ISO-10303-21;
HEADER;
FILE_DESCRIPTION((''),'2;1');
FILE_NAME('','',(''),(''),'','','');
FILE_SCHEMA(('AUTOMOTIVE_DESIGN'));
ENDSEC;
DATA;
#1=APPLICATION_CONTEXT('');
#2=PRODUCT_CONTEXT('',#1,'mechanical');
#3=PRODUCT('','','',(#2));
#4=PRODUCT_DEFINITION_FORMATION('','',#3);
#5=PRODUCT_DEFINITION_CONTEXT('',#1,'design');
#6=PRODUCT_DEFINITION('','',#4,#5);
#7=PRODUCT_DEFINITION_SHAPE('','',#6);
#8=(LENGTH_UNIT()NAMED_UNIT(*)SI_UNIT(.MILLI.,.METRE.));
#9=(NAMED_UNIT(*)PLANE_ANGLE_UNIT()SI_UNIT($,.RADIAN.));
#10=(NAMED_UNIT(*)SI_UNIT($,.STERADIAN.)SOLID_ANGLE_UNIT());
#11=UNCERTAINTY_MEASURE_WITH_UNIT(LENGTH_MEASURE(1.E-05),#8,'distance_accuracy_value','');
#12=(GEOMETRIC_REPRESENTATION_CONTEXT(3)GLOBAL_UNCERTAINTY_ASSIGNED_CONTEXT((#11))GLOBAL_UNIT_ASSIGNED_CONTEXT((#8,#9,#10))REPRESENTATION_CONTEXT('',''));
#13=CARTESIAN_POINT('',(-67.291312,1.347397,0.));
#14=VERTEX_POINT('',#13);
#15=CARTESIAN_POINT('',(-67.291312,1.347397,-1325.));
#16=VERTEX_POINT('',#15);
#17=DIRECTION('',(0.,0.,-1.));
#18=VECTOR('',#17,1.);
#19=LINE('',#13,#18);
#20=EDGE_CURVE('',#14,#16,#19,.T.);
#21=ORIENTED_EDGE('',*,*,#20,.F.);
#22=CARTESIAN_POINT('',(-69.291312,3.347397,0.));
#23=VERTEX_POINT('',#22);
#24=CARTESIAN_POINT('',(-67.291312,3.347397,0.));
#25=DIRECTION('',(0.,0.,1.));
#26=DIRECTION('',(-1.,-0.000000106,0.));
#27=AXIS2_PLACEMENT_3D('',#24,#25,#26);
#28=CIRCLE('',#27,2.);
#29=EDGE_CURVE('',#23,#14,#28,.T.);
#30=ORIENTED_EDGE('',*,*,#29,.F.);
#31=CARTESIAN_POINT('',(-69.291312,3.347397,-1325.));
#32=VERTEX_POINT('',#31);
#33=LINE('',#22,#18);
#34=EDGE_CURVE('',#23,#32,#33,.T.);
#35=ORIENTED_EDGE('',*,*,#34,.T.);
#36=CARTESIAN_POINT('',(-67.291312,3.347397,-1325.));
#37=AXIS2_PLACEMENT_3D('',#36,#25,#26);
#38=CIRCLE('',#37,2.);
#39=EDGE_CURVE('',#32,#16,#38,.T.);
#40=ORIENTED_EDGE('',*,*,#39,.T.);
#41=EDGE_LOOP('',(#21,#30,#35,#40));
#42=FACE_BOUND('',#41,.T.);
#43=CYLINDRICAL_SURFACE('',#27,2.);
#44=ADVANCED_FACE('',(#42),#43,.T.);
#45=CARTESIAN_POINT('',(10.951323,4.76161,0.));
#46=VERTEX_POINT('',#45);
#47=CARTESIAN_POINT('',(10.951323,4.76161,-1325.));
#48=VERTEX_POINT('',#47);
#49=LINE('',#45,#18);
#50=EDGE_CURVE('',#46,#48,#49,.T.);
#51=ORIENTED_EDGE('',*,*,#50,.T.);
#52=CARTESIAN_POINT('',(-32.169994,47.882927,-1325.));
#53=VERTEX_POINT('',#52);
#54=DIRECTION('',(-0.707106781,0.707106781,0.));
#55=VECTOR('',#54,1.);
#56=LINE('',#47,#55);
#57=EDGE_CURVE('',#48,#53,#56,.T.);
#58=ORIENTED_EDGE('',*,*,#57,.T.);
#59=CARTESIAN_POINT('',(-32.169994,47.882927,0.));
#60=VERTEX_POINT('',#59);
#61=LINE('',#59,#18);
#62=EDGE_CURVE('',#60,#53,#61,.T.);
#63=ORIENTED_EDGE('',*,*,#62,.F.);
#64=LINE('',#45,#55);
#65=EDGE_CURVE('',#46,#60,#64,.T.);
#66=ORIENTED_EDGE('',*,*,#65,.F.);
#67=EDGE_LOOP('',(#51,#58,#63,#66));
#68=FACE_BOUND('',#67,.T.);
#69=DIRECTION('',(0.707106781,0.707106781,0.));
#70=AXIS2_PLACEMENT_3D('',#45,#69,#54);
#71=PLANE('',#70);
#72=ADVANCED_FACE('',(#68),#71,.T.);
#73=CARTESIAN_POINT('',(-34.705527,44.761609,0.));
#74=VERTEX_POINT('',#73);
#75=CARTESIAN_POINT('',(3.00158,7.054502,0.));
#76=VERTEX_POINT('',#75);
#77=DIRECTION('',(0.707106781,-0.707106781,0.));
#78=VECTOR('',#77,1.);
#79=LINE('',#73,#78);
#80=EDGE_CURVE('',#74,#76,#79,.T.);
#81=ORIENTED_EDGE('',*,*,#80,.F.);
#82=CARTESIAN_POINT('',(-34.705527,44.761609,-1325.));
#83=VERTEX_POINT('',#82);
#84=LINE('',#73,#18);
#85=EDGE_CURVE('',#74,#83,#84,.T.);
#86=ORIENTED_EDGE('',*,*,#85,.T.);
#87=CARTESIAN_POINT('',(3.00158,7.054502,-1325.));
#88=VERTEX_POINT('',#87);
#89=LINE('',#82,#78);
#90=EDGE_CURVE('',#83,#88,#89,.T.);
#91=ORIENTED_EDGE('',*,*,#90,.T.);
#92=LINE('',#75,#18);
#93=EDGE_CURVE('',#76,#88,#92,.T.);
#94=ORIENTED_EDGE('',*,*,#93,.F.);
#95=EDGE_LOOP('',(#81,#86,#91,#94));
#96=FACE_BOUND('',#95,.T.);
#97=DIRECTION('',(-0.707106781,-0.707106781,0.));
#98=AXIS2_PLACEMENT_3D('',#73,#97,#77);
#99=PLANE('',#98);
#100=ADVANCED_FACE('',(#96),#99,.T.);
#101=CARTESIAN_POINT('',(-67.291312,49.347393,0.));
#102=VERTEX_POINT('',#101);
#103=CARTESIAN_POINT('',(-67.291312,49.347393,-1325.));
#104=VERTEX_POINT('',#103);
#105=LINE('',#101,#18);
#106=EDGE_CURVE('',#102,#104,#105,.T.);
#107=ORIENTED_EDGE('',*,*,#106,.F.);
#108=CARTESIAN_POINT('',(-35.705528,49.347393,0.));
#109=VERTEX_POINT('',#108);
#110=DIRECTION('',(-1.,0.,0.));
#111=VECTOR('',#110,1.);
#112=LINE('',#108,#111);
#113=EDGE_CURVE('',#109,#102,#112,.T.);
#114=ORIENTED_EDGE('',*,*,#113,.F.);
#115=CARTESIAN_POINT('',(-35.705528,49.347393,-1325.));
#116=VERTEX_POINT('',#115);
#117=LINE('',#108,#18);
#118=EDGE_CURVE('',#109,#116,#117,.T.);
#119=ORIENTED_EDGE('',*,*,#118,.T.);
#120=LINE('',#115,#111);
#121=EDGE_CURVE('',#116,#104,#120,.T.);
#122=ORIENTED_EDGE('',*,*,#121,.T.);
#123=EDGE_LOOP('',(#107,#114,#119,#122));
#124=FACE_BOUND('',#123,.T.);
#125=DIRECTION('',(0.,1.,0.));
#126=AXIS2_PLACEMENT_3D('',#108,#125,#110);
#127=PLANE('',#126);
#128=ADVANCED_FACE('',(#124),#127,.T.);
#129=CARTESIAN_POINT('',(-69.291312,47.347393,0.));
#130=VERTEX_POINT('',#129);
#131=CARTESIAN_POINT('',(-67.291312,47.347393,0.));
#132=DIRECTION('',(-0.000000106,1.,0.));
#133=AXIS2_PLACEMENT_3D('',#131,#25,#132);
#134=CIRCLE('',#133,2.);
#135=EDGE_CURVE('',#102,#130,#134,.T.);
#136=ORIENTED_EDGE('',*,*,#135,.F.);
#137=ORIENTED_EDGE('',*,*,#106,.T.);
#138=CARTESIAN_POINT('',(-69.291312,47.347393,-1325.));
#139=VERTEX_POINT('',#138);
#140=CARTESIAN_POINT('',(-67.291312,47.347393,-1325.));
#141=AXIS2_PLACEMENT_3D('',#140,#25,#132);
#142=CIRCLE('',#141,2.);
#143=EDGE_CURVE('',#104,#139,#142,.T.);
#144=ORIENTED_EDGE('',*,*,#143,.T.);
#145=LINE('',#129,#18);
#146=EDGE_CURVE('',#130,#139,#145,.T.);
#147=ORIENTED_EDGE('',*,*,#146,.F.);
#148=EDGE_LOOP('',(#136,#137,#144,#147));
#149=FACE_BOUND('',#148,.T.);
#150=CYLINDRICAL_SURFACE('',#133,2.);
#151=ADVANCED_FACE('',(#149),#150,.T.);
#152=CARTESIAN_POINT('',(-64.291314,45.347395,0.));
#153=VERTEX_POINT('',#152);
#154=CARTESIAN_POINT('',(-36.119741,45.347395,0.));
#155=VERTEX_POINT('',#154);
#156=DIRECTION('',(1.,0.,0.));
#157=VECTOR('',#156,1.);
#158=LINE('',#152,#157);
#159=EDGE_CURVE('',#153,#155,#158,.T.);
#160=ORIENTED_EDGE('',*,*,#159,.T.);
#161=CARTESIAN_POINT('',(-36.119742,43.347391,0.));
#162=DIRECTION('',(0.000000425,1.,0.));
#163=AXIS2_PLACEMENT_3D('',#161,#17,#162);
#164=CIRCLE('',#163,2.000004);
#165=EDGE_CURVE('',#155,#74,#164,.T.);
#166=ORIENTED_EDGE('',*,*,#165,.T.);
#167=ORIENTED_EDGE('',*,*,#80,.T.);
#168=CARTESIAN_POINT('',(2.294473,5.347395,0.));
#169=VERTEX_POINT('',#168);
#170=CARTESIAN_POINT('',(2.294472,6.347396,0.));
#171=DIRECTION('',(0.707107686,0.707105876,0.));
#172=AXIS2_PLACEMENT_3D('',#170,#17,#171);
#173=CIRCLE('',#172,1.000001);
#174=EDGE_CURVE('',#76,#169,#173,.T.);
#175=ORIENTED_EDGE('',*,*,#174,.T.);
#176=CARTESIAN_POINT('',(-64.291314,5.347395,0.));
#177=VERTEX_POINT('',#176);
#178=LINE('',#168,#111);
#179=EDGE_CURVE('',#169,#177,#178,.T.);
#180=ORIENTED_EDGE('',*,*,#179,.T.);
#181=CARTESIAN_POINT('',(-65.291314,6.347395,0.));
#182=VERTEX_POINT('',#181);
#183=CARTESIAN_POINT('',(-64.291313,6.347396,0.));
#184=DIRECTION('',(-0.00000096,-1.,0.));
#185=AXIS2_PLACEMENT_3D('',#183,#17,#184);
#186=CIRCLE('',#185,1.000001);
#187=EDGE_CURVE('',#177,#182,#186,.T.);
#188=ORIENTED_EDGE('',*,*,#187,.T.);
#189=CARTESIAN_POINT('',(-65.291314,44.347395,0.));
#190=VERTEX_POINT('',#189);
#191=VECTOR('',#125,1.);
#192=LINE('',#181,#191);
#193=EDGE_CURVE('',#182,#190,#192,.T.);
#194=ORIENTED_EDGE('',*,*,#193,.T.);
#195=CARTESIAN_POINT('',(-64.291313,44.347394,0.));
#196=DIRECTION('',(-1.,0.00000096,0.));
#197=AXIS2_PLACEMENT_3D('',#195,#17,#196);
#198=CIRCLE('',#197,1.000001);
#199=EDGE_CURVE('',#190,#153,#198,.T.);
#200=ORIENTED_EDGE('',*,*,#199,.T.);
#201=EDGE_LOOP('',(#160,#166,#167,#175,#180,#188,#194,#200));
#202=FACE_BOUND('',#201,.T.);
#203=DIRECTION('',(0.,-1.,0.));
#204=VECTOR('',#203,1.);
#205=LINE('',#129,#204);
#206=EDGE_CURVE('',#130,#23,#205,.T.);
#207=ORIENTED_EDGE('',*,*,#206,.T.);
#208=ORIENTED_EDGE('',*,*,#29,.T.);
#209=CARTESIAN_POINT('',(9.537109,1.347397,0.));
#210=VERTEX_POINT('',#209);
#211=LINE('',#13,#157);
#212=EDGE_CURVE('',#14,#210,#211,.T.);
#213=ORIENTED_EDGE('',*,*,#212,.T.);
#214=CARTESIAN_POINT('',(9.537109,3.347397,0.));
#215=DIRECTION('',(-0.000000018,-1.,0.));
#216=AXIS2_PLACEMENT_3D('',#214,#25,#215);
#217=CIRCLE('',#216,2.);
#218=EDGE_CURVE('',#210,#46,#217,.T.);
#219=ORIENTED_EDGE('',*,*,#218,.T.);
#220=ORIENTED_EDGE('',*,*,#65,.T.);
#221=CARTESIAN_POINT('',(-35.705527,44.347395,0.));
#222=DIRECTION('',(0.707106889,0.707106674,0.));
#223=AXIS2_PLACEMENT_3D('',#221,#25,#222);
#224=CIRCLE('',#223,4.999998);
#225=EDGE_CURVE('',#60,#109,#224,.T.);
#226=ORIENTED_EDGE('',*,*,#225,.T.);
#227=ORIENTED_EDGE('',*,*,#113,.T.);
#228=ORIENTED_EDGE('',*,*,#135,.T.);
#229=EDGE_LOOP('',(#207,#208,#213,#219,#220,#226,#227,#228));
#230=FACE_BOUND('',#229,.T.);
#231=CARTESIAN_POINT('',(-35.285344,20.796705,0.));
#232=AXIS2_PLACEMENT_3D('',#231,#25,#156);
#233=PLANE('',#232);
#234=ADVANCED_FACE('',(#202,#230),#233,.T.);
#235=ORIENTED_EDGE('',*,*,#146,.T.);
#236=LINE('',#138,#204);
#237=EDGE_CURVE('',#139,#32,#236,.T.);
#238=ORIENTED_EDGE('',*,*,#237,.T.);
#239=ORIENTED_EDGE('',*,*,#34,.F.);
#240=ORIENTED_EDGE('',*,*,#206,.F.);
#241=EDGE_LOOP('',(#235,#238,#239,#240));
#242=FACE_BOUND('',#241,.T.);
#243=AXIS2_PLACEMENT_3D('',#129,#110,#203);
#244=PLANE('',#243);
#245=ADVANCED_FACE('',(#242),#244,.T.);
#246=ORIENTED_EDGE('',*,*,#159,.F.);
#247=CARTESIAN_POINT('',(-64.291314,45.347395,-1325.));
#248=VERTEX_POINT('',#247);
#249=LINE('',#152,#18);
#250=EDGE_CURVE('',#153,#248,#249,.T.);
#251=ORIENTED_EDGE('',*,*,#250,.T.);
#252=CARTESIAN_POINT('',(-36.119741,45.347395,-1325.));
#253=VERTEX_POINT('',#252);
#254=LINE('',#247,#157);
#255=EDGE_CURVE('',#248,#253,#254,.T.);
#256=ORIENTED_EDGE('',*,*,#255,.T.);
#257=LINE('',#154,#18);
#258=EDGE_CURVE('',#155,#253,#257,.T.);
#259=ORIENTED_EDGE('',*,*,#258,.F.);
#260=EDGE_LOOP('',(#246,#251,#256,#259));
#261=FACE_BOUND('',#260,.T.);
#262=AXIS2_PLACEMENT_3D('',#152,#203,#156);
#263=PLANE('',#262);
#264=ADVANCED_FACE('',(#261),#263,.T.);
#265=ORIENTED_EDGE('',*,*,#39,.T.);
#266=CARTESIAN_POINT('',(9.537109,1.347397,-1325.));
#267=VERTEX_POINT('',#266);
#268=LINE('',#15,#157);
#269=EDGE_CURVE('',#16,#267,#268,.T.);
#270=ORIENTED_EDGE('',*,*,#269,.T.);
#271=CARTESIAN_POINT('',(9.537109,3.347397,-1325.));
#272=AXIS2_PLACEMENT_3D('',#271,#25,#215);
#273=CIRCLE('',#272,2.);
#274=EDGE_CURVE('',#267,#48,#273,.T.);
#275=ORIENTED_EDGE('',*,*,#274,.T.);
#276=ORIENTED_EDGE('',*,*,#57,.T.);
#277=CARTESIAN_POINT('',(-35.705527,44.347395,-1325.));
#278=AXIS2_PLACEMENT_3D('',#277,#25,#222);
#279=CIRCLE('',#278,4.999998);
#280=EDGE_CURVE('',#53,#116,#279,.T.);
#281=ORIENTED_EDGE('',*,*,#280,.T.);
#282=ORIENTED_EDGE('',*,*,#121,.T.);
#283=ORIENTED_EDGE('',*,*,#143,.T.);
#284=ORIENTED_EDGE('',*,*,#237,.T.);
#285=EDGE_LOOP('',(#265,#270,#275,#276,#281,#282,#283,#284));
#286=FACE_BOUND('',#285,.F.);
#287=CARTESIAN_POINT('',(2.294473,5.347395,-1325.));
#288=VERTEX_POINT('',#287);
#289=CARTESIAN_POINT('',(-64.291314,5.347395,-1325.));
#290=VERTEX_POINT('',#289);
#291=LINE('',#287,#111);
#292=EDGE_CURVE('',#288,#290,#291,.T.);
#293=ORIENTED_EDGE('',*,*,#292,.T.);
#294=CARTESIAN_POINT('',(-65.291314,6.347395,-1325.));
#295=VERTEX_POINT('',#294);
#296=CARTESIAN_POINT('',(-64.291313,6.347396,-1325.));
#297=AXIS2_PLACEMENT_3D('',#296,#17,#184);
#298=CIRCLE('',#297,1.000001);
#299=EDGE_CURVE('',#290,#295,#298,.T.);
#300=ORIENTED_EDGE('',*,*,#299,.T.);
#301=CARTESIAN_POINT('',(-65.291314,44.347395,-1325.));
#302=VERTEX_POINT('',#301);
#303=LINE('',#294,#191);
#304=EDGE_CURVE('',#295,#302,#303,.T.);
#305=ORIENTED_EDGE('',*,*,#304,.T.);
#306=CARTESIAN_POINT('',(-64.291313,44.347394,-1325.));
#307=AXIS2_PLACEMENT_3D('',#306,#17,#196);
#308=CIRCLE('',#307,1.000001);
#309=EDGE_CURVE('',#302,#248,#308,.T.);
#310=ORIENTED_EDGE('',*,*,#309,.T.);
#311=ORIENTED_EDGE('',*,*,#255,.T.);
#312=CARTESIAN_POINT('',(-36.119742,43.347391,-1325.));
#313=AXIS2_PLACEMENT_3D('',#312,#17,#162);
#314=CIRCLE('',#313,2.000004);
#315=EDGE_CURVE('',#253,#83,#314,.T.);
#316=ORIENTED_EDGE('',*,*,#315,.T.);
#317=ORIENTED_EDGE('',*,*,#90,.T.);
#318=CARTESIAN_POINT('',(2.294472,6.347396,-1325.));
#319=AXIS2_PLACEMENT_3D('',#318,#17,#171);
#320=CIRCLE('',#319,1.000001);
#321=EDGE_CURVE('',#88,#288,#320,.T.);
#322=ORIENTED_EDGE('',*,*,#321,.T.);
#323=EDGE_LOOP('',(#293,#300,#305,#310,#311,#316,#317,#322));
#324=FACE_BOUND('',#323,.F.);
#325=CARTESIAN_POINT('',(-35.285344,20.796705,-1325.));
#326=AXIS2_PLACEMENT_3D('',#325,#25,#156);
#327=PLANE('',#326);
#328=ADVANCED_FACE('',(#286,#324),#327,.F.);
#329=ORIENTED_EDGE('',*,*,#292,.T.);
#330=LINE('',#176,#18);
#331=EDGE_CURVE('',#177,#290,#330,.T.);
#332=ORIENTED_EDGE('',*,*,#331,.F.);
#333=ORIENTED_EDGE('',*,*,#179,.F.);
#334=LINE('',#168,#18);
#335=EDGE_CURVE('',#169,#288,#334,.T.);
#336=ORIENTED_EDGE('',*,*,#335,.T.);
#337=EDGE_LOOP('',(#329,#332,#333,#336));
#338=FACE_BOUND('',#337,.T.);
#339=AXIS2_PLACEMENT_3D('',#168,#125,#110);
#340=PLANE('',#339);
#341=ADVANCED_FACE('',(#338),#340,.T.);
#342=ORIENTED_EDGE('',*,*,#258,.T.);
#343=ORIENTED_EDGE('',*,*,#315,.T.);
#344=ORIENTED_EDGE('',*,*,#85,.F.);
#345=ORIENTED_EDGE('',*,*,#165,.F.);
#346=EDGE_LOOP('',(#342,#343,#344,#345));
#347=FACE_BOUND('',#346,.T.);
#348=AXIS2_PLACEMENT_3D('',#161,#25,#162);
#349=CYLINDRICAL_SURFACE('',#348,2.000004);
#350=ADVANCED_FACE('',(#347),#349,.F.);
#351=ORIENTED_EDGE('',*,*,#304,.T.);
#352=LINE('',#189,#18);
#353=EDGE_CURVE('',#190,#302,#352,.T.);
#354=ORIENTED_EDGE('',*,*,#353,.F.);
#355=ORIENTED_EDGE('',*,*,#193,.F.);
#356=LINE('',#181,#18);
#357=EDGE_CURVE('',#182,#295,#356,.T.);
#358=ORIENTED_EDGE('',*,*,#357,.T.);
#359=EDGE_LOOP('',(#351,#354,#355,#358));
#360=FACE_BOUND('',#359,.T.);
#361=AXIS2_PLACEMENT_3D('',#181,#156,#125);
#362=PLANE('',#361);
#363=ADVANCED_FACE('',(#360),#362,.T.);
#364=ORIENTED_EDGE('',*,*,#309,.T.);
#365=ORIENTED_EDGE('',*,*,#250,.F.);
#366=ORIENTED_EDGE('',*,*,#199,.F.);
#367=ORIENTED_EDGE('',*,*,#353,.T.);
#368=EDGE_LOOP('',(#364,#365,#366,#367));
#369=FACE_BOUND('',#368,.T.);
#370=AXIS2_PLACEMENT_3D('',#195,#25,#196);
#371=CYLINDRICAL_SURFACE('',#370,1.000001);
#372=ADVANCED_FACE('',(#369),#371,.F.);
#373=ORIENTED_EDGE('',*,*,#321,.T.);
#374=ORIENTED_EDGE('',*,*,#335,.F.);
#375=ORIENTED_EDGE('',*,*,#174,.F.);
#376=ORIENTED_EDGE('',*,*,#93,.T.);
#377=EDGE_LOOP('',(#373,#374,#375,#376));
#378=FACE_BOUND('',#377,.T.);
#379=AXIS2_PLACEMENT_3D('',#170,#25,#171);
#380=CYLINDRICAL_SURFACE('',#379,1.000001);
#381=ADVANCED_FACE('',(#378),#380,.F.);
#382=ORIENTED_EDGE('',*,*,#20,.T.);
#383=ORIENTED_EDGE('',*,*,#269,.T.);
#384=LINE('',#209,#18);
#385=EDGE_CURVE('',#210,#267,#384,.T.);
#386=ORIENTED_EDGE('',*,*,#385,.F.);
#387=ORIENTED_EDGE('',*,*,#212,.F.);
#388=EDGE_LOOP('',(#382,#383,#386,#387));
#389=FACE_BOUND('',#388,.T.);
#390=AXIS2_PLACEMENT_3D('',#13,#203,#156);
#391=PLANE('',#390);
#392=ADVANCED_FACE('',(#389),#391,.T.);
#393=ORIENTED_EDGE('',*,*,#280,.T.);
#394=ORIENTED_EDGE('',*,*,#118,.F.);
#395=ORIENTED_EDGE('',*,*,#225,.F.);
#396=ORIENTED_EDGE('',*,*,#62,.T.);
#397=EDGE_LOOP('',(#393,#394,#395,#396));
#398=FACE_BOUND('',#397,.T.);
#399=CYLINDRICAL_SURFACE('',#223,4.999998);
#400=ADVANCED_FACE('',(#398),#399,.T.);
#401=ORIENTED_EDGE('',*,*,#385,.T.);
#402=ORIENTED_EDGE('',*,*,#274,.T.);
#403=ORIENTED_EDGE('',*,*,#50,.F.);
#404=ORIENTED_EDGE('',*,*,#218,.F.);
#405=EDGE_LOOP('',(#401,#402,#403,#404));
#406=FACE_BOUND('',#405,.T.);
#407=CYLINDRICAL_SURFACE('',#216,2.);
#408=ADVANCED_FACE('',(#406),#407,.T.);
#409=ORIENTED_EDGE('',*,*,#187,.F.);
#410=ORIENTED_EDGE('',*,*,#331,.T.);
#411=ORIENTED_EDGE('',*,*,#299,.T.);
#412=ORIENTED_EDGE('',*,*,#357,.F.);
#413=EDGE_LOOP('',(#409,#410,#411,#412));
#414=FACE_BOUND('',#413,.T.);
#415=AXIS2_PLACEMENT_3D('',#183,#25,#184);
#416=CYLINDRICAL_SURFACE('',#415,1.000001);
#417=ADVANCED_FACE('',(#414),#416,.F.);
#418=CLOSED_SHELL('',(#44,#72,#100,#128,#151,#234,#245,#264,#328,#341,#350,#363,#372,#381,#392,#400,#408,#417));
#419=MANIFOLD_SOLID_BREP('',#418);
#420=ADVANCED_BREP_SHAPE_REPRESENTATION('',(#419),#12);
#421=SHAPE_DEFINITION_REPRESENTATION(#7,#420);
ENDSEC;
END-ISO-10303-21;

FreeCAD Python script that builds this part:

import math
import FreeCAD as App
import Part
import Sketcher
from FreeCAD import Vector
Q = App.Units.Quantity

doc = App.newDocument("Part")
body = doc.addObject("PartDesign::Body", "Body")

sketch1 = doc.addObject("Sketcher::SketchObject", "Sketch")
body.addObject(sketch1)
sketch1.AttachmentSupport = (doc.XY_Plane, [""])
sketch1.MapMode = "FlatFace"
sketch1.addGeometry([
    Part.LineSegment(Vector(-35.705528, 49.347393, 0), Vector(-67.291312, 49.347393, 0)),
    Part.ArcOfCircle(Part.Circle(Vector(-67.291312, 47.347393, 0), Vector(0, 0, 1), 2), math.radians(90.000006), math.radians(179.999994)),
    Part.LineSegment(Vector(-69.291312, 47.347393, 0), Vector(-69.291312, 3.347397, 0)),
    Part.ArcOfCircle(Part.Circle(Vector(-67.291312, 3.347397, 0), Vector(0, 0, 1), 2), math.radians(-179.999994), math.radians(-90.000006)),
    Part.LineSegment(Vector(-67.291312, 1.347397, 0), Vector(9.537109, 1.347397, 0)),
    Part.ArcOfCircle(Part.Circle(Vector(9.537109, 3.347397, 0), Vector(0, 0, 1), 2), math.radians(-90.000001), math.radians(44.999982)),
    Part.LineSegment(Vector(10.951323, 4.76161, 0), Vector(-32.169994, 47.882927, 0)),
    Part.ArcOfCircle(Part.Circle(Vector(-35.705527, 44.347395, 0), Vector(0, 0, 1), 4.999998), math.radians(44.999991), math.radians(90.000012)),
    Part.LineSegment(Vector(-65.291314, 6.347395, 0), Vector(-65.291314, 44.347395, 0)),
    Part.ArcOfCircle(Part.Circle(Vector(-64.291313, 44.347394, 0), Vector(0, 0, 1), 1.000001), math.radians(90.000055), math.radians(179.999945)),
    Part.LineSegment(Vector(-64.291314, 45.347395, 0), Vector(-36.119741, 45.347395, 0)),
    Part.ArcOfCircle(Part.Circle(Vector(-36.119742, 43.347391, 0), Vector(0, 0, 1), 2.000004), math.radians(45.000067), math.radians(89.999976)),
    Part.LineSegment(Vector(-34.705527, 44.761609, 0), Vector(3.00158, 7.054502, 0)),
    Part.ArcOfCircle(Part.Circle(Vector(2.294472, 6.347396, 0), Vector(0, 0, 1), 1.000001), math.radians(-89.999934), math.radians(44.999927)),
    Part.LineSegment(Vector(2.294473, 5.347395, 0), Vector(-64.291314, 5.347395, 0)),
    Part.ArcOfCircle(Part.Circle(Vector(-64.291313, 6.347396, 0), Vector(0, 0, 1), 1.000001), math.radians(-179.999945), math.radians(-90.000055)),
], False)
sketch1.addConstraint([
    Sketcher.Constraint("Tangent", 0, 2, 1, 1),
    Sketcher.Constraint("Tangent", 1, 2, 2, 1),
    Sketcher.Constraint("Tangent", 2, 2, 3, 1),
    Sketcher.Constraint("Tangent", 3, 2, 4, 1),
    Sketcher.Constraint("Tangent", 4, 2, 5, 1),
    Sketcher.Constraint("Tangent", 5, 2, 6, 1),
    Sketcher.Constraint("Tangent", 6, 2, 7, 1),
    Sketcher.Constraint("Tangent", 7, 2, 0, 1),
    Sketcher.Constraint("Tangent", 8, 2, 9, 2),
    Sketcher.Constraint("Tangent", 9, 1, 10, 1),
    Sketcher.Constraint("Tangent", 10, 2, 11, 2),
    Sketcher.Constraint("Tangent", 11, 1, 12, 1),
    Sketcher.Constraint("Tangent", 12, 2, 13, 2),
    Sketcher.Constraint("Tangent", 13, 1, 14, 1),
    Sketcher.Constraint("Tangent", 14, 2, 15, 2),
    Sketcher.Constraint("Tangent", 15, 1, 8, 1),
    Sketcher.Constraint("Horizontal", 0),
    Sketcher.Constraint("Vertical", 2),
    Sketcher.Constraint("Horizontal", 4),
    Sketcher.Constraint("Vertical", 8),
    Sketcher.Constraint("Horizontal", 10),
    Sketcher.Constraint("Horizontal", 14),
    Sketcher.Constraint("Equal", 1, 3),
    Sketcher.Constraint("Equal", 3, 5),
    Sketcher.Constraint("Equal", 9, 13),
    Sketcher.Constraint("Equal", 13, 15),
    Sketcher.Constraint("Parallel", 6, 12),
    Sketcher.Constraint("Horizontal", 7, 3, 9, 3),
    Sketcher.Constraint("Radius", 1, 2.0),
    Sketcher.Constraint("Radius", 9, 1.000001),
    Sketcher.Constraint("DistanceY", 8, 1, 8, 2, 38.0),
    Sketcher.Constraint("Angle", 6, Q("135 deg")),
    Sketcher.Constraint("DistanceY", 5, 3, 7, 3, 40.999998),
    Sketcher.Constraint("DistanceX", 1, 3, 9, 3, 2.999999),
    Sketcher.Constraint("DistanceY", 9, 3, 1, 3, 2.999999),
    Sketcher.Constraint("DistanceY", 11, 3, 1, 3, 4.000002),
    Sketcher.Constraint("DistanceX", 7, 3, 13, 3, 37.999999),
    Sketcher.Constraint("DistanceX", 4, 1, 4, 2, 76.828421),
    Sketcher.Constraint("DistanceX", 1, 3, -1, 1, 67.291312),
    Sketcher.Constraint("DistanceY", -1, 1, 11, 3, 43.347391),
])
pad1 = doc.addObject("PartDesign::Pad", "Pad")
body.addObject(pad1)
pad1.Profile = sketch1
pad1.Length = 1325
pad1.Reversed = True

doc.recompute()
